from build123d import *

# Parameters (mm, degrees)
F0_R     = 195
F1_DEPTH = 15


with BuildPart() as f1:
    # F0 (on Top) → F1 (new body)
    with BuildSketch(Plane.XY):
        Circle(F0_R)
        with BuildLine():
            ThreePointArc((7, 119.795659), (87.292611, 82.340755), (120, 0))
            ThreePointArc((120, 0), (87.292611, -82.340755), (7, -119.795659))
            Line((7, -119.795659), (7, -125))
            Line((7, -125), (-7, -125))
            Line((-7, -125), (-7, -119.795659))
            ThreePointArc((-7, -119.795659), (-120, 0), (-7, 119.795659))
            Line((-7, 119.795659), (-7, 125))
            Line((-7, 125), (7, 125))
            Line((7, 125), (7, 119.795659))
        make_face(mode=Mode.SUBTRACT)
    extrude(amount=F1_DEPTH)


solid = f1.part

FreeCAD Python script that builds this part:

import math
import FreeCAD as App
import Part
import Sketcher
from FreeCAD import Vector

doc = App.newDocument("Part")
params = doc.addObject("Spreadsheet::Sheet", "Params")
for row, (alias, value) in enumerate([
    ("sketch1_diameter", "390 mm"),
    ("sketch1_radius", "120.000001 mm"),
    ("sketch1_width", "14 mm"),
    ("pad1_length", "15 mm"),
], start=1):
    params.set(f"A{row}", alias)
    params.set(f"B{row}", "=" + value)
    params.setAlias(f"B{row}", alias)

body = doc.addObject("PartDesign::Body", "Body")

sketch1 = body.newObject("Sketcher::SketchObject", "Sketch")
sketch1.AttachmentSupport = (doc.getObject("XY_Plane"), [""])
sketch1.MapMode = "FlatFace"
sketch1.addGeometry(Part.Circle(Vector(0, 0, 0), Vector(0, 0, 1), 195), False)
sketch1.addGeometry(Part.LineSegment(Vector(7, 125, 0), Vector(7, 119.795659, 0)), False)
sketch1.addGeometry(Part.ArcOfCircle(Part.Circle(Vector(-0.000001, -0.000001, 0), Vector(0, 0, 1), 120.000001), math.radians(0.000001), math.radians(86.655847)), False)
sketch1.addGeometry(Part.ArcOfCircle(Part.Circle(Vector(-0.000001, 0.000001, 0), Vector(0, 0, 1), 120.000001), math.radians(-86.655847), math.radians(-0.000001)), False)
sketch1.addGeometry(Part.LineSegment(Vector(7, -119.795659, 0), Vector(7, -125, 0)), False)
sketch1.addGeometry(Part.LineSegment(Vector(7, -125, 0), Vector(-7, -125, 0)), False)
sketch1.addGeometry(Part.LineSegment(Vector(-7, -125, 0), Vector(-7, -119.795659, 0)), False)
sketch1.addGeometry(Part.ArcOfCircle(Part.Circle(Vector(0, 0, 0), Vector(0, 0, 1), 120), math.radians(93.344152), math.radians(266.655848)), False)
sketch1.addGeometry(Part.LineSegment(Vector(-7, 119.795659, 0), Vector(-7, 125, 0)), False)
sketch1.addGeometry(Part.LineSegment(Vector(-7, 125, 0), Vector(7, 125, 0)), False)
sketch1.addConstraint(Sketcher.Constraint("Coincident", 1, 2, 2, 2))
sketch1.addConstraint(Sketcher.Constraint("Tangent", 2, 1, 3, 2))
sketch1.addConstraint(Sketcher.Constraint("Coincident", 3, 1, 4, 1))
sketch1.addConstraint(Sketcher.Constraint("Coincident", 4, 2, 5, 1))
sketch1.addConstraint(Sketcher.Constraint("Coincident", 5, 2, 6, 1))
sketch1.addConstraint(Sketcher.Constraint("Coincident", 6, 2, 7, 2))
sketch1.addConstraint(Sketcher.Constraint("Coincident", 7, 1, 8, 1))
sketch1.addConstraint(Sketcher.Constraint("Coincident", 8, 2, 9, 1))
sketch1.addConstraint(Sketcher.Constraint("Coincident", 9, 2, 1, 1))
sketch1.addConstraint(Sketcher.Constraint("Vertical", 1))
sketch1.addConstraint(Sketcher.Constraint("Vertical", 4))
sketch1.addConstraint(Sketcher.Constraint("Horizontal", 5))
sketch1.addConstraint(Sketcher.Constraint("Vertical", 6))
sketch1.addConstraint(Sketcher.Constraint("Vertical", 8))
sketch1.addConstraint(Sketcher.Constraint("Horizontal", 9))
sketch1.addConstraint(Sketcher.Constraint("Coincident", 0, 3, -1, 1))
sketch1.addConstraint(Sketcher.Constraint("Coincident", 2, 3, -1, 1))
sketch1.addConstraint(Sketcher.Constraint("Coincident", 7, 3, -1, 1))
sketch1.addConstraint(Sketcher.Constraint("Equal", 2, 3))
sketch1.addConstraint(Sketcher.Constraint("Equal", 3, 7))
sketch1.addConstraint(Sketcher.Constraint("Symmetric", 4, 2, 8, 2, -1, 1))
sketch1.addConstraint(Sketcher.Constraint("PointOnObject", 2, 1, -1))
sketch1.addConstraint(Sketcher.Constraint("Horizontal", 3, 1, 6, 2))
sketch1.addConstraint(Sketcher.Constraint("Horizontal", 1, 2, 7, 1))
sketch1.addConstraint(Sketcher.Constraint("Diameter", 0, 390.0))
sketch1.addConstraint(Sketcher.Constraint("Radius", 2, 120.000001))
sketch1.addConstraint(Sketcher.Constraint("DistanceX", 5, 2, 5, 1, 14.0))
sketch1.addConstraint(Sketcher.Constraint("DistanceY", 4, 2, -1, 1, 125.0))
sketch1.setExpression("Constraints[24]", "Params.sketch1_diameter")
sketch1.setExpression("Constraints[25]", "Params.sketch1_radius")
sketch1.setExpression("Constraints[26]", "Params.sketch1_width")
pad1 = body.newObject("PartDesign::Pad", "Pad")
pad1.Profile = sketch1
pad1.setExpression("Length", "Params.pad1_length")

doc.recompute()
